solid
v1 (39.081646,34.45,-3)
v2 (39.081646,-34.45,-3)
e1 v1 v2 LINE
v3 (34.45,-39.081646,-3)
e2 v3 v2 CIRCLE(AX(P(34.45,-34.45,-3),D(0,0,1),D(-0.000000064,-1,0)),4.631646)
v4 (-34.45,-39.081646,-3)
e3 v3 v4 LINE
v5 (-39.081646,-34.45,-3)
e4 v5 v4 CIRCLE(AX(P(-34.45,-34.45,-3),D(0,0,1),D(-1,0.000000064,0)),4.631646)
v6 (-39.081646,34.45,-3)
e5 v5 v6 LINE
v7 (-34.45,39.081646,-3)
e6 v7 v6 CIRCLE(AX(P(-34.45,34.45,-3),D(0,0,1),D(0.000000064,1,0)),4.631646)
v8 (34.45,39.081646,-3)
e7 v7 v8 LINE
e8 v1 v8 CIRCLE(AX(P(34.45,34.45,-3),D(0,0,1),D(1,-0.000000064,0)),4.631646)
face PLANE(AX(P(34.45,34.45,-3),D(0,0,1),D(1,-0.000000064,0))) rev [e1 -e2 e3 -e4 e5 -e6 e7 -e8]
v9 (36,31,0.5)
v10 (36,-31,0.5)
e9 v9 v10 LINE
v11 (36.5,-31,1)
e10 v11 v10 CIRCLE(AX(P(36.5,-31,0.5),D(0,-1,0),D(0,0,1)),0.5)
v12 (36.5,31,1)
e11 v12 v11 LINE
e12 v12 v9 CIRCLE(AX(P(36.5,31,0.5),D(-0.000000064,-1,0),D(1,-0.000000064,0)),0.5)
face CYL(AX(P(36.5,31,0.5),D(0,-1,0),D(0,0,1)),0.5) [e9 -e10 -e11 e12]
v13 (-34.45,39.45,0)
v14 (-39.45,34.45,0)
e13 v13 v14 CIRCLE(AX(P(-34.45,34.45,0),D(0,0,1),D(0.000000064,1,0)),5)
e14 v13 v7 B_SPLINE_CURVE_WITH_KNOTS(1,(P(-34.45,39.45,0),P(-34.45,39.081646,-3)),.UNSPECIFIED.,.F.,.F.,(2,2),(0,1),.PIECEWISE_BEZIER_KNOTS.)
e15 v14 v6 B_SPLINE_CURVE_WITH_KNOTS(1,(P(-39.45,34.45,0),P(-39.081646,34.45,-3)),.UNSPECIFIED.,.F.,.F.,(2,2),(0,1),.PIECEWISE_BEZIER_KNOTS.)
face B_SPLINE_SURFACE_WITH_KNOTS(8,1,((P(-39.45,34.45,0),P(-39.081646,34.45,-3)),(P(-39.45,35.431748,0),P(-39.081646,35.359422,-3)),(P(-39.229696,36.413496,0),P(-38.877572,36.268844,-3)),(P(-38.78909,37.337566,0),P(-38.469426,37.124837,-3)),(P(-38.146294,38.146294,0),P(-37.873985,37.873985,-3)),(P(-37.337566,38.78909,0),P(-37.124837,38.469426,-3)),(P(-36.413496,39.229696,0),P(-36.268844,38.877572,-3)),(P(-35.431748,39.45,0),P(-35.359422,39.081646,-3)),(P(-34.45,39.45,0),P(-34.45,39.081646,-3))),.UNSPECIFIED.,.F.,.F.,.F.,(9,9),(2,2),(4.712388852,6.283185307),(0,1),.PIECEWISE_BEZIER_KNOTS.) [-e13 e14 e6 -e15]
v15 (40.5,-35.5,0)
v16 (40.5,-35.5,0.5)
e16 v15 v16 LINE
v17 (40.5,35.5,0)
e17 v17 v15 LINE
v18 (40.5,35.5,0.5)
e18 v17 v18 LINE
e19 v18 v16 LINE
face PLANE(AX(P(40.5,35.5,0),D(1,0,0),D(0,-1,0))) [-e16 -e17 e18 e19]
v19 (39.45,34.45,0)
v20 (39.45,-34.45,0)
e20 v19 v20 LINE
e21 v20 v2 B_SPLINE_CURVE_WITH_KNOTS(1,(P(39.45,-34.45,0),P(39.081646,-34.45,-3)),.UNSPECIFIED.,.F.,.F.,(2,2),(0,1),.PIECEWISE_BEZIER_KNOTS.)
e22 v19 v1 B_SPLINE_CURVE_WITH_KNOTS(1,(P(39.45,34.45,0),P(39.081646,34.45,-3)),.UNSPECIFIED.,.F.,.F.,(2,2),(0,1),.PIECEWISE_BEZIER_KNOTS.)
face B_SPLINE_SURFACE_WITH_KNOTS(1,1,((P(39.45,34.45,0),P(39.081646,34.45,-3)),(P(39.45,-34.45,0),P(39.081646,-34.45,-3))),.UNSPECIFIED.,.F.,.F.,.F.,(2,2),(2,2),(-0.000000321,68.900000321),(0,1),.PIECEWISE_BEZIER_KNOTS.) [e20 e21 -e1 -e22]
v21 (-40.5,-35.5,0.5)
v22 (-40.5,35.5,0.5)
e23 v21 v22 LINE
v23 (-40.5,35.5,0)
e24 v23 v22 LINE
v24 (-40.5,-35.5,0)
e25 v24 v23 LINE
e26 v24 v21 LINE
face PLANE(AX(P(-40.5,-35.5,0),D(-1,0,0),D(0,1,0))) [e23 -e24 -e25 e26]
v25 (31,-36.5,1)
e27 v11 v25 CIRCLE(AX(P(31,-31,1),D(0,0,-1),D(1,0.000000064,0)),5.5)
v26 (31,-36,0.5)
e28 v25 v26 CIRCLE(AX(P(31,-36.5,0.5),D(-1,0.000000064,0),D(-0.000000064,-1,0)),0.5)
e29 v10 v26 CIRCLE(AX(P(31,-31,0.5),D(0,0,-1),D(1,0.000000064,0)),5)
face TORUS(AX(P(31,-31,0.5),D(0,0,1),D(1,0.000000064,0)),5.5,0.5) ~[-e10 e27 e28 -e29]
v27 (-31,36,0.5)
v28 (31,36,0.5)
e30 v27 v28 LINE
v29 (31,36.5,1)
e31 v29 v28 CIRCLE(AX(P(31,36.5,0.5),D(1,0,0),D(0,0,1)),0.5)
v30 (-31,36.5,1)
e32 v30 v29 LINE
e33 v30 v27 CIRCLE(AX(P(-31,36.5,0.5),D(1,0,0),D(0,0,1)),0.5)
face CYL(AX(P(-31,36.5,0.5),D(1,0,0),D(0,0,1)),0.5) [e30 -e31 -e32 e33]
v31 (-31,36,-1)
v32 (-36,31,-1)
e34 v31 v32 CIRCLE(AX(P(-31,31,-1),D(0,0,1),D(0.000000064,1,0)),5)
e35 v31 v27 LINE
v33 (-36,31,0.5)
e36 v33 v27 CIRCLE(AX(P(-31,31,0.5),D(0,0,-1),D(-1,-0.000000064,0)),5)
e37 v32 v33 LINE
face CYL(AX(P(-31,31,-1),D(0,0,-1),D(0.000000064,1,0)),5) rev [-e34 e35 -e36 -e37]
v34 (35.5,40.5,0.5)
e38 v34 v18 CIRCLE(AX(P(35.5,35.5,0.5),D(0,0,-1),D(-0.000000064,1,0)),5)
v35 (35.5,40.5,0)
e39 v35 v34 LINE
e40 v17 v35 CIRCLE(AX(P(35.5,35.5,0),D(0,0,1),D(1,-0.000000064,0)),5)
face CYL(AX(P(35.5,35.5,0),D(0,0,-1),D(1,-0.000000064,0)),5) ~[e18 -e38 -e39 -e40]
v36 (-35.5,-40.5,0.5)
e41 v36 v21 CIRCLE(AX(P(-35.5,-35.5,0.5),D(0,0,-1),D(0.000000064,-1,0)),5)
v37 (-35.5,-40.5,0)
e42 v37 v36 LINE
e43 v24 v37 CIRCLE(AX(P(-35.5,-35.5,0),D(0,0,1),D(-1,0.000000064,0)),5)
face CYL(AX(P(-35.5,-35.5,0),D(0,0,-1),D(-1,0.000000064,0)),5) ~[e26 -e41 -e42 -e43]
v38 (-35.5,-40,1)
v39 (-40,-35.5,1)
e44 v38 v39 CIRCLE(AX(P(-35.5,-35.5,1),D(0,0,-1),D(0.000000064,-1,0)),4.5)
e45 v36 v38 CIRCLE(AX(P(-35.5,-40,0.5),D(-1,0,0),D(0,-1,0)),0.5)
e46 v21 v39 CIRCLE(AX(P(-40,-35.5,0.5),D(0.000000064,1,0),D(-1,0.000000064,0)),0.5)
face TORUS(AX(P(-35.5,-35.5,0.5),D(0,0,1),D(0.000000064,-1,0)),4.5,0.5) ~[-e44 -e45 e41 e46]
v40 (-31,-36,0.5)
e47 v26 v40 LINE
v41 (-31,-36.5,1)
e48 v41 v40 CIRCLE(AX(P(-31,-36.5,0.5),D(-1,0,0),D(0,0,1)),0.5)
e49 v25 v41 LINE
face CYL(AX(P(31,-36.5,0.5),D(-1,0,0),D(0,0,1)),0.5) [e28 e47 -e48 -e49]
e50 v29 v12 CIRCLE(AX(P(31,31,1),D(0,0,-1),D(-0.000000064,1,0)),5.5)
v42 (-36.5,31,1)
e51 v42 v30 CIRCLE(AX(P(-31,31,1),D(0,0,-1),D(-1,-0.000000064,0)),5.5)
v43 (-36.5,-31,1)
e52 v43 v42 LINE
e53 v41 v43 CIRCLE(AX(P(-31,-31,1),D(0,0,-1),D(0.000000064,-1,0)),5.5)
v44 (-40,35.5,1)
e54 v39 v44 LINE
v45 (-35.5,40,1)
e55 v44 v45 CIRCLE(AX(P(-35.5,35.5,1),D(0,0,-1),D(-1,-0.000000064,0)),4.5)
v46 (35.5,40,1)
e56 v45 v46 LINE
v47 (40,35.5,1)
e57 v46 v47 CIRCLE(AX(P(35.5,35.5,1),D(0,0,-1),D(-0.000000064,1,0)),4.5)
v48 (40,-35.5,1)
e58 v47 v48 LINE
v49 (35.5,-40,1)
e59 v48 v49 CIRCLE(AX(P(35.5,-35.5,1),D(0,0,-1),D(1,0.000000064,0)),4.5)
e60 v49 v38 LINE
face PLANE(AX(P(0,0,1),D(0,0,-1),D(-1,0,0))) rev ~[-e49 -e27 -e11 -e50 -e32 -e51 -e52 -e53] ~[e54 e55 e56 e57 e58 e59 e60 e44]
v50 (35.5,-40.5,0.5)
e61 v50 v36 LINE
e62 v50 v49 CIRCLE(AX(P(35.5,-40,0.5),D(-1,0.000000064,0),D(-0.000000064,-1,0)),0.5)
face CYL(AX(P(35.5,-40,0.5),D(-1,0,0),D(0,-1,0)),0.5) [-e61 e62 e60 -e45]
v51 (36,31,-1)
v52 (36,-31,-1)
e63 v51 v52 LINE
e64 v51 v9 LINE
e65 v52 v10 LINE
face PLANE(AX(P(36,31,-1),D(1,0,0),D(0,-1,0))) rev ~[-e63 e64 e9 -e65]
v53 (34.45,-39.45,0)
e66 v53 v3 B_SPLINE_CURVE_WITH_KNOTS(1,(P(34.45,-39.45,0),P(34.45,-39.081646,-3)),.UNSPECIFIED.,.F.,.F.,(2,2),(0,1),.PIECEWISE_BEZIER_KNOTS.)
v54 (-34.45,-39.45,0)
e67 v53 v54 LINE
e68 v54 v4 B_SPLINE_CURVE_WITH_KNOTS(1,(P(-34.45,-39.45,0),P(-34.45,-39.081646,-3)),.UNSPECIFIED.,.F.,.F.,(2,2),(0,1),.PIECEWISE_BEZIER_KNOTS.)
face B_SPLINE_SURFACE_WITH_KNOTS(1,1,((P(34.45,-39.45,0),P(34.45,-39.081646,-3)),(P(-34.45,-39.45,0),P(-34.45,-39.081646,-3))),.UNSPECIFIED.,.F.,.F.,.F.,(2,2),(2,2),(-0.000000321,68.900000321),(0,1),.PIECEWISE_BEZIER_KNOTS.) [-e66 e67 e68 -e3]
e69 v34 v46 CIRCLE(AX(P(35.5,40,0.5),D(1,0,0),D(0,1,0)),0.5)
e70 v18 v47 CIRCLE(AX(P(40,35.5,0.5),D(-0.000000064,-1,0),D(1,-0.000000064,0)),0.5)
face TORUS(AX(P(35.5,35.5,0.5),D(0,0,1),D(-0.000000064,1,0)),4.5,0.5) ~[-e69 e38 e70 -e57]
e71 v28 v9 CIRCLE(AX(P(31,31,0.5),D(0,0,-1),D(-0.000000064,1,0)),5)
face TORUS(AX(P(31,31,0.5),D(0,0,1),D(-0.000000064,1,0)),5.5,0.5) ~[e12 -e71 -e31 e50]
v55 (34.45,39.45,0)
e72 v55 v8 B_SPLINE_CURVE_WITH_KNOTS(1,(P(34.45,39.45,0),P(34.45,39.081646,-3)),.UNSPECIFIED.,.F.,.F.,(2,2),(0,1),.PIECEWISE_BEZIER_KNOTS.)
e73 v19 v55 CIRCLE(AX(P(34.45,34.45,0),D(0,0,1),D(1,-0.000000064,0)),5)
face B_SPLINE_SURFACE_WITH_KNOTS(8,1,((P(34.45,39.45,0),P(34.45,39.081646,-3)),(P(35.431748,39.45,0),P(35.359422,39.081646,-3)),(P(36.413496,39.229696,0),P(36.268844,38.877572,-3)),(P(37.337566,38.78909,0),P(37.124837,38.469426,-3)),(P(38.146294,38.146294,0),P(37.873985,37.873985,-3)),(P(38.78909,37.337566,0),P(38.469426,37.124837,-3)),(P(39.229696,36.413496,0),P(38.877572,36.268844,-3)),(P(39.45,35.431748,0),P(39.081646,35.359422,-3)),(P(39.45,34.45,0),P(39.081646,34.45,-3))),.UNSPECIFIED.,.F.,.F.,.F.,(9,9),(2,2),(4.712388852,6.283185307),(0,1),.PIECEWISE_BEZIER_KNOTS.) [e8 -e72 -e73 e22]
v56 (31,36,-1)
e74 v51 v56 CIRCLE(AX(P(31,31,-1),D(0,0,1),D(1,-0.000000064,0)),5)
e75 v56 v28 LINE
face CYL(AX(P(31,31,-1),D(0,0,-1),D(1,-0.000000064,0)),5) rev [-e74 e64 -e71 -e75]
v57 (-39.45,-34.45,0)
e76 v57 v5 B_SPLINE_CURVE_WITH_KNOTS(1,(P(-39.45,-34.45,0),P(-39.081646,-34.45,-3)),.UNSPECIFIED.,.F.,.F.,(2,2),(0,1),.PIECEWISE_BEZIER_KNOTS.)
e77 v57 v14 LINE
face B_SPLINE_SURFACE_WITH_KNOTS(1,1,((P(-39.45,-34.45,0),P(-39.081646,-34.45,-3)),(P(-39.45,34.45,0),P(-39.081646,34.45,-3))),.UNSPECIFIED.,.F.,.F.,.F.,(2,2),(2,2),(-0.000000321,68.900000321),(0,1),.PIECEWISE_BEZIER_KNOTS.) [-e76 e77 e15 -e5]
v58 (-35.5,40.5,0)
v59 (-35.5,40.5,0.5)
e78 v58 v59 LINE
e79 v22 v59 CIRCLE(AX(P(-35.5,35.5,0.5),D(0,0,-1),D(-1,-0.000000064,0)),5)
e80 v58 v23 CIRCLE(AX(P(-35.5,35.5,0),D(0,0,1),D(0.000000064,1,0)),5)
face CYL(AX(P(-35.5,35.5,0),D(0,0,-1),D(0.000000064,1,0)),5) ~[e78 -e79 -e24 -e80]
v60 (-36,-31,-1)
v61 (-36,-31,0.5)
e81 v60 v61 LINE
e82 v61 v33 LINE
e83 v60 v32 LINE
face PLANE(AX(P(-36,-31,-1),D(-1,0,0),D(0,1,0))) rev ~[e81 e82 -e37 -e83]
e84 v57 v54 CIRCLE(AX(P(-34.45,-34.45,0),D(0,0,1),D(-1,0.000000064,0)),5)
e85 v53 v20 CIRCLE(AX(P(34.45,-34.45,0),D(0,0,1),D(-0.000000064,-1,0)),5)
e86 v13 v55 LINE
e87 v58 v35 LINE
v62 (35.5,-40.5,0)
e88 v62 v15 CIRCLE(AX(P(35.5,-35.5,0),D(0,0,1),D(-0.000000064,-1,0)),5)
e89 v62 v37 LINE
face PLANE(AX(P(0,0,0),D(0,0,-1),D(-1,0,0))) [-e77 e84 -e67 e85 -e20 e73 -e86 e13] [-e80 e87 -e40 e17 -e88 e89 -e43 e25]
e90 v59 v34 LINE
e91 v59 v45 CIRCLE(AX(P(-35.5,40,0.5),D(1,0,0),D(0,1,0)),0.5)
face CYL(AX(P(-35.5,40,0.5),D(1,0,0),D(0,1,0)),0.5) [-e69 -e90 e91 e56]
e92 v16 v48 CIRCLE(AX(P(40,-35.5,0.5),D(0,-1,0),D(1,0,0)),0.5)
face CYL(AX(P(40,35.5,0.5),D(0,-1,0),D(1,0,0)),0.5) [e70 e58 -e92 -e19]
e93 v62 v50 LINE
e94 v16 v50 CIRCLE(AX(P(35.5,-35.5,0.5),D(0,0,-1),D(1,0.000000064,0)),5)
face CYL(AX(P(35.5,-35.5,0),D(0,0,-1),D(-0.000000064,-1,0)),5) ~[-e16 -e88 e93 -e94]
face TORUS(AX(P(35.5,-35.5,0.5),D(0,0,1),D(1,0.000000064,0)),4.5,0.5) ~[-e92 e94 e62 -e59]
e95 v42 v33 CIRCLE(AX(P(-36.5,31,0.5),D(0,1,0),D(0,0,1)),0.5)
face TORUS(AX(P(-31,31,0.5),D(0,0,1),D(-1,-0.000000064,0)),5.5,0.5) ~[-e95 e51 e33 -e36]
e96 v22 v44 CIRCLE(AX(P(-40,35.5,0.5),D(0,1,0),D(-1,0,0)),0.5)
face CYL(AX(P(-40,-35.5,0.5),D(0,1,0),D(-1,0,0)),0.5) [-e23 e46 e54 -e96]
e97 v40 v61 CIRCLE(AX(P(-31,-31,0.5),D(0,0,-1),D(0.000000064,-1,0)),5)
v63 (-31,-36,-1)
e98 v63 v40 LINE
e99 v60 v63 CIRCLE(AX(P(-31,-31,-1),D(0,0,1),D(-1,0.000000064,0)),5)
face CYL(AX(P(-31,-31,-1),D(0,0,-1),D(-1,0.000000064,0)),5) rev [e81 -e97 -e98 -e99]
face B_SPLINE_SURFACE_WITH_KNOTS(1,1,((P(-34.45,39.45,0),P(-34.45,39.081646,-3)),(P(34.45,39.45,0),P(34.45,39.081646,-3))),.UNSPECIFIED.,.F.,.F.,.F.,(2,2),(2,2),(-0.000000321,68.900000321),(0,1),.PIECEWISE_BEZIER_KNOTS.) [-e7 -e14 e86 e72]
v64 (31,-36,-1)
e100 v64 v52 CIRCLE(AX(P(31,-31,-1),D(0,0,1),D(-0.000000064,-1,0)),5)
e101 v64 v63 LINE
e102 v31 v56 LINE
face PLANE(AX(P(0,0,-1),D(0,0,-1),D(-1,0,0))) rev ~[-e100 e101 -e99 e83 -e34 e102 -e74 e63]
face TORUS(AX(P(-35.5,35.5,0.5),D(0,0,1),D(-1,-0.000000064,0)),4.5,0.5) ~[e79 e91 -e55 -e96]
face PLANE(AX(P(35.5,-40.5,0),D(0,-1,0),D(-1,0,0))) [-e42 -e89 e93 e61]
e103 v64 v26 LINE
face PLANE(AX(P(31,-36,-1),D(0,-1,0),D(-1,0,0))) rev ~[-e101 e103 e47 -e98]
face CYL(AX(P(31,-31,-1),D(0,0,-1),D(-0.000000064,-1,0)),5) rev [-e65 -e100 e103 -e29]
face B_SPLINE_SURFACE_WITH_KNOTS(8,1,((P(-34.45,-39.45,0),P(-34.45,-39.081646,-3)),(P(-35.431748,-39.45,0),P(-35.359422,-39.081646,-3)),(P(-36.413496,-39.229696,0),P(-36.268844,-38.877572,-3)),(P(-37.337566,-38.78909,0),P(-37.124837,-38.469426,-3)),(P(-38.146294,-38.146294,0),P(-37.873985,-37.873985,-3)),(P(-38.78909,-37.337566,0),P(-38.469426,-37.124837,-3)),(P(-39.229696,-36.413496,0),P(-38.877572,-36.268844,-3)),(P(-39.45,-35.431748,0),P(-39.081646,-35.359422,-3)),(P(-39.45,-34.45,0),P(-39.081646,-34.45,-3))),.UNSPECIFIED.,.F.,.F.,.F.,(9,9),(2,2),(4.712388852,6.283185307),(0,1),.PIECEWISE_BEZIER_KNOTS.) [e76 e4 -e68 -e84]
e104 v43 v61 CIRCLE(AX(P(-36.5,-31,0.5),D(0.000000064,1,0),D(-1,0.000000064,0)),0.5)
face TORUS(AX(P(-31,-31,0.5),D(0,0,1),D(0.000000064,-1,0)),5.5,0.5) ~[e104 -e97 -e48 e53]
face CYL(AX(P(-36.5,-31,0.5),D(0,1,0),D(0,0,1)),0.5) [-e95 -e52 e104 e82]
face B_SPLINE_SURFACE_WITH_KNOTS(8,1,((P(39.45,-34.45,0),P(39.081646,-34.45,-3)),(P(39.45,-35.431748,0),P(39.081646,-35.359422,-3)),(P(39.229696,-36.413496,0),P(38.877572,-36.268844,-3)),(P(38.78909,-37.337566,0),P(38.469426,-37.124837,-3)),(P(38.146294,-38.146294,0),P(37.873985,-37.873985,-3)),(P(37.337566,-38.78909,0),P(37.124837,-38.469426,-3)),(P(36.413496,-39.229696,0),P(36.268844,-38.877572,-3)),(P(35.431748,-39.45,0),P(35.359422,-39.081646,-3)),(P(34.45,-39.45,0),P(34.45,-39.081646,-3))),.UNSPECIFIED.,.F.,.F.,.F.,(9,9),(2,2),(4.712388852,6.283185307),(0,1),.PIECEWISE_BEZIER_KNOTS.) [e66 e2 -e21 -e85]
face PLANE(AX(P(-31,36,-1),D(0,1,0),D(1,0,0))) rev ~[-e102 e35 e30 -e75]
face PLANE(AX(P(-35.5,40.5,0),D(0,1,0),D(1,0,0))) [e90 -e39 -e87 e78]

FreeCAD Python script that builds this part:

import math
import FreeCAD as App
import Part
import Sketcher
from FreeCAD import Vector


def edges_at(feature, points):
    """Names of the edges that pass closest to the given points."""
    edges = feature.Shape.Edges
    near = lambda p: min(range(len(edges)), key=lambda i: edges[i].distToShape(Part.Vertex(*p))[0])
    return sorted({f"Edge{near(p) + 1}" for p in points})

doc = App.newDocument("Part")
body = doc.addObject("PartDesign::Body", "Body")

sketch1 = body.newObject("Sketcher::SketchObject", "Sketch")
sketch1.AttachmentSupport = (doc.getObject("XY_Plane"), [""])
sketch1.MapMode = "FlatFace"
sketch1.addGeometry([
    Part.LineSegment(Vector(35.5, 40.5, 0), Vector(-35.5, 40.5, 0)),
    Part.ArcOfCircle(Part.Circle(Vector(-35.5, 35.5, 0), Vector(0, 0, 1), 5), math.radians(89.999996), math.radians(180.000004)),
    Part.LineSegment(Vector(-40.5, 35.5, 0), Vector(-40.5, -35.5, 0)),
    Part.ArcOfCircle(Part.Circle(Vector(-35.5, -35.5, 0), Vector(0, 0, 1), 5), math.radians(179.999996), math.radians(270.000004)),
    Part.LineSegment(Vector(-35.5, -40.5, 0), Vector(35.5, -40.5, 0)),
    Part.ArcOfCircle(Part.Circle(Vector(35.5, -35.5, 0), Vector(0, 0, 1), 5), math.radians(-90.000004), math.radians(0.000004)),
    Part.LineSegment(Vector(40.5, -35.5, 0), Vector(40.5, 35.5, 0)),
    Part.ArcOfCircle(Part.Circle(Vector(35.5, 35.5, 0), Vector(0, 0, 1), 5), math.radians(-0.000004), math.radians(90.000004)),
], False)
sketch1.addConstraint([
    Sketcher.Constraint("Tangent", 0, 2, 1, 1),
    Sketcher.Constraint("Tangent", 1, 2, 2, 1),
    Sketcher.Constraint("Tangent", 2, 2, 3, 1),
    Sketcher.Constraint("Tangent", 3, 2, 4, 1),
    Sketcher.Constraint("Tangent", 4, 2, 5, 1),
    Sketcher.Constraint("Tangent", 5, 2, 6, 1),
    Sketcher.Constraint("Tangent", 6, 2, 7, 1),
    Sketcher.Constraint("Tangent", 7, 2, 0, 1),
    Sketcher.Constraint("Horizontal", 0),
    Sketcher.Constraint("Vertical", 2),
    Sketcher.Constraint("Horizontal", 4),
    Sketcher.Constraint("Vertical", 6),
    Sketcher.Constraint("Equal", 1, 3),
    Sketcher.Constraint("Equal", 3, 5),
    Sketcher.Constraint("Equal", 5, 7),
    Sketcher.Constraint("Symmetric", 1, 3, 5, 3, -1, 1),
    Sketcher.Constraint("Equal", 4, 2),
    Sketcher.Constraint("Radius", 1, 5.0),
    Sketcher.Constraint("DistanceX", 0, 2, 0, 1, 71.0),
])
pad1 = body.newObject("PartDesign::Pad", "Pad")
pad1.Profile = sketch1
pad1.Length = 1

sketch2 = body.newObject("Sketcher::SketchObject", "Sketch001")
sketch2.AttachmentSupport = (doc.getObject("XY_Plane"), [""])
sketch2.MapMode = "FlatFace"
sketch2.addGeometry([
    Part.LineSegment(Vector(34.45, 39.45, 0), Vector(-34.45, 39.45, 0)),
    Part.ArcOfCircle(Part.Circle(Vector(-34.45, 34.45, 0), Vector(0, 0, 1), 5), math.radians(89.999996), math.radians(180.000004)),
    Part.LineSegment(Vector(-39.45, 34.45, 0), Vector(-39.45, -34.45, 0)),
    Part.ArcOfCircle(Part.Circle(Vector(-34.45, -34.45, 0), Vector(0, 0, 1), 5), math.radians(179.999996), math.radians(270.000004)),
    Part.LineSegment(Vector(-34.45, -39.45, 0), Vector(34.45, -39.45, 0)),
    Part.ArcOfCircle(Part.Circle(Vector(34.45, -34.45, 0), Vector(0, 0, 1), 5), math.radians(-90.000004), math.radians(0.000004)),
    Part.LineSegment(Vector(39.45, -34.45, 0), Vector(39.45, 34.45, 0)),
    Part.ArcOfCircle(Part.Circle(Vector(34.45, 34.45, 0), Vector(0, 0, 1), 5), math.radians(-0.000004), math.radians(90.000004)),
], False)
sketch2.addConstraint([
    Sketcher.Constraint("Tangent", 0, 2, 1, 1),
    Sketcher.Constraint("Tangent", 1, 2, 2, 1),
    Sketcher.Constraint("Tangent", 2, 2, 3, 1),
    Sketcher.Constraint("Tangent", 3, 2, 4, 1),
    Sketcher.Constraint("Tangent", 4, 2, 5, 1),
    Sketcher.Constraint("Tangent", 5, 2, 6, 1),
    Sketcher.Constraint("Tangent", 6, 2, 7, 1),
    Sketcher.Constraint("Tangent", 7, 2, 0, 1),
    Sketcher.Constraint("Horizontal", 0),
    Sketcher.Constraint("Vertical", 2),
    Sketcher.Constraint("Horizontal", 4),
    Sketcher.Constraint("Vertical", 6),
    Sketcher.Constraint("Equal", 1, 3),
    Sketcher.Constraint("Equal", 3, 5),
    Sketcher.Constraint("Equal", 5, 7),
    Sketcher.Constraint("Symmetric", 1, 3, 5, 3, -1, 1),
    Sketcher.Constraint("Equal", 4, 2),
    Sketcher.Constraint("Radius", 1, 5.0),
    Sketcher.Constraint("DistanceX", 0, 2, 0, 1, 68.9),
])
pad2 = body.newObject("PartDesign::Pad", "Pad001")
pad2.Profile = sketch2
pad2.Length = 3
pad2.Reversed = True
pad2.TaperAngle = -7

sketch3 = body.newObject("Sketcher::SketchObject", "Sketch002")
sketch3.AttachmentSupport = (doc.getObject("XY_Plane"), [""])
sketch3.MapMode = "FlatFace"
sketch3.AttachmentOffset = App.Placement(Vector(0, 0, -1), App.Rotation())
sketch3.addGeometry([
    Part.LineSegment(Vector(31, 36, 0), Vector(-31, 36, 0)),
    Part.ArcOfCircle(Part.Circle(Vector(-31, 31, 0), Vector(0, 0, 1), 5), math.radians(89.999996), math.radians(180.000004)),
    Part.LineSegment(Vector(-36, 31, 0), Vector(-36, -31, 0)),
    Part.ArcOfCircle(Part.Circle(Vector(-31, -31, 0), Vector(0, 0, 1), 5), math.radians(179.999996), math.radians(270.000004)),
    Part.LineSegment(Vector(-31, -36, 0), Vector(31, -36, 0)),
    Part.ArcOfCircle(Part.Circle(Vector(31, -31, 0), Vector(0, 0, 1), 5), math.radians(-90.000004), math.radians(0.000004)),
    Part.LineSegment(Vector(36, -31, 0), Vector(36, 31, 0)),
    Part.ArcOfCircle(Part.Circle(Vector(31, 31, 0), Vector(0, 0, 1), 5), math.radians(-0.000004), math.radians(90.000004)),
], False)
sketch3.addConstraint([
    Sketcher.Constraint("Tangent", 0, 2, 1, 1),
    Sketcher.Constraint("Tangent", 1, 2, 2, 1),
    Sketcher.Constraint("Tangent", 2, 2, 3, 1),
    Sketcher.Constraint("Tangent", 3, 2, 4, 1),
    Sketcher.Constraint("Tangent", 4, 2, 5, 1),
    Sketcher.Constraint("Tangent", 5, 2, 6, 1),
    Sketcher.Constraint("Tangent", 6, 2, 7, 1),
    Sketcher.Constraint("Tangent", 7, 2, 0, 1),
    Sketcher.Constraint("Horizontal", 0),
    Sketcher.Constraint("Vertical", 2),
    Sketcher.Constraint("Horizontal", 4),
    Sketcher.Constraint("Vertical", 6),
    Sketcher.Constraint("Equal", 1, 3),
    Sketcher.Constraint("Equal", 3, 5),
    Sketcher.Constraint("Equal", 5, 7),
    Sketcher.Constraint("Symmetric", 1, 3, 5, 3, -1, 1),
    Sketcher.Constraint("Equal", 4, 2),
    Sketcher.Constraint("Radius", 1, 5.0),
    Sketcher.Constraint("DistanceX", 0, 2, 0, 1, 62.0),
])
pocket1 = body.newObject("PartDesign::Pocket", "Pocket")
pocket1.Profile = sketch3
pocket1.Type = "ThroughAll"
pocket1.Reversed = True
doc.recompute()

fillet = body.newObject("PartDesign::Fillet", "Fillet")
fillet.Base = (pocket1, edges_at(pocket1, [
    (0, 36, 1),
    (-34.536, 34.536, 1),
    (-36, 0, 1),
    (-34.536, -34.536, 1),
    (0, -36, 1),
    (34.536, -34.536, 1),
    (36, 0, 1),
    (34.536, 34.536, 1),
    (0, 40.5, 1),
    (-39.036, 39.036, 1),
    (-40.5, 0, 1),
    (-39.036, -39.036, 1),
    (0, -40.5, 1),
    (39.036, -39.036, 1),
    (40.5, 0, 1),
    (39.036, 39.036, 1),
]))
fillet.Radius = 0.5

doc.recompute()
